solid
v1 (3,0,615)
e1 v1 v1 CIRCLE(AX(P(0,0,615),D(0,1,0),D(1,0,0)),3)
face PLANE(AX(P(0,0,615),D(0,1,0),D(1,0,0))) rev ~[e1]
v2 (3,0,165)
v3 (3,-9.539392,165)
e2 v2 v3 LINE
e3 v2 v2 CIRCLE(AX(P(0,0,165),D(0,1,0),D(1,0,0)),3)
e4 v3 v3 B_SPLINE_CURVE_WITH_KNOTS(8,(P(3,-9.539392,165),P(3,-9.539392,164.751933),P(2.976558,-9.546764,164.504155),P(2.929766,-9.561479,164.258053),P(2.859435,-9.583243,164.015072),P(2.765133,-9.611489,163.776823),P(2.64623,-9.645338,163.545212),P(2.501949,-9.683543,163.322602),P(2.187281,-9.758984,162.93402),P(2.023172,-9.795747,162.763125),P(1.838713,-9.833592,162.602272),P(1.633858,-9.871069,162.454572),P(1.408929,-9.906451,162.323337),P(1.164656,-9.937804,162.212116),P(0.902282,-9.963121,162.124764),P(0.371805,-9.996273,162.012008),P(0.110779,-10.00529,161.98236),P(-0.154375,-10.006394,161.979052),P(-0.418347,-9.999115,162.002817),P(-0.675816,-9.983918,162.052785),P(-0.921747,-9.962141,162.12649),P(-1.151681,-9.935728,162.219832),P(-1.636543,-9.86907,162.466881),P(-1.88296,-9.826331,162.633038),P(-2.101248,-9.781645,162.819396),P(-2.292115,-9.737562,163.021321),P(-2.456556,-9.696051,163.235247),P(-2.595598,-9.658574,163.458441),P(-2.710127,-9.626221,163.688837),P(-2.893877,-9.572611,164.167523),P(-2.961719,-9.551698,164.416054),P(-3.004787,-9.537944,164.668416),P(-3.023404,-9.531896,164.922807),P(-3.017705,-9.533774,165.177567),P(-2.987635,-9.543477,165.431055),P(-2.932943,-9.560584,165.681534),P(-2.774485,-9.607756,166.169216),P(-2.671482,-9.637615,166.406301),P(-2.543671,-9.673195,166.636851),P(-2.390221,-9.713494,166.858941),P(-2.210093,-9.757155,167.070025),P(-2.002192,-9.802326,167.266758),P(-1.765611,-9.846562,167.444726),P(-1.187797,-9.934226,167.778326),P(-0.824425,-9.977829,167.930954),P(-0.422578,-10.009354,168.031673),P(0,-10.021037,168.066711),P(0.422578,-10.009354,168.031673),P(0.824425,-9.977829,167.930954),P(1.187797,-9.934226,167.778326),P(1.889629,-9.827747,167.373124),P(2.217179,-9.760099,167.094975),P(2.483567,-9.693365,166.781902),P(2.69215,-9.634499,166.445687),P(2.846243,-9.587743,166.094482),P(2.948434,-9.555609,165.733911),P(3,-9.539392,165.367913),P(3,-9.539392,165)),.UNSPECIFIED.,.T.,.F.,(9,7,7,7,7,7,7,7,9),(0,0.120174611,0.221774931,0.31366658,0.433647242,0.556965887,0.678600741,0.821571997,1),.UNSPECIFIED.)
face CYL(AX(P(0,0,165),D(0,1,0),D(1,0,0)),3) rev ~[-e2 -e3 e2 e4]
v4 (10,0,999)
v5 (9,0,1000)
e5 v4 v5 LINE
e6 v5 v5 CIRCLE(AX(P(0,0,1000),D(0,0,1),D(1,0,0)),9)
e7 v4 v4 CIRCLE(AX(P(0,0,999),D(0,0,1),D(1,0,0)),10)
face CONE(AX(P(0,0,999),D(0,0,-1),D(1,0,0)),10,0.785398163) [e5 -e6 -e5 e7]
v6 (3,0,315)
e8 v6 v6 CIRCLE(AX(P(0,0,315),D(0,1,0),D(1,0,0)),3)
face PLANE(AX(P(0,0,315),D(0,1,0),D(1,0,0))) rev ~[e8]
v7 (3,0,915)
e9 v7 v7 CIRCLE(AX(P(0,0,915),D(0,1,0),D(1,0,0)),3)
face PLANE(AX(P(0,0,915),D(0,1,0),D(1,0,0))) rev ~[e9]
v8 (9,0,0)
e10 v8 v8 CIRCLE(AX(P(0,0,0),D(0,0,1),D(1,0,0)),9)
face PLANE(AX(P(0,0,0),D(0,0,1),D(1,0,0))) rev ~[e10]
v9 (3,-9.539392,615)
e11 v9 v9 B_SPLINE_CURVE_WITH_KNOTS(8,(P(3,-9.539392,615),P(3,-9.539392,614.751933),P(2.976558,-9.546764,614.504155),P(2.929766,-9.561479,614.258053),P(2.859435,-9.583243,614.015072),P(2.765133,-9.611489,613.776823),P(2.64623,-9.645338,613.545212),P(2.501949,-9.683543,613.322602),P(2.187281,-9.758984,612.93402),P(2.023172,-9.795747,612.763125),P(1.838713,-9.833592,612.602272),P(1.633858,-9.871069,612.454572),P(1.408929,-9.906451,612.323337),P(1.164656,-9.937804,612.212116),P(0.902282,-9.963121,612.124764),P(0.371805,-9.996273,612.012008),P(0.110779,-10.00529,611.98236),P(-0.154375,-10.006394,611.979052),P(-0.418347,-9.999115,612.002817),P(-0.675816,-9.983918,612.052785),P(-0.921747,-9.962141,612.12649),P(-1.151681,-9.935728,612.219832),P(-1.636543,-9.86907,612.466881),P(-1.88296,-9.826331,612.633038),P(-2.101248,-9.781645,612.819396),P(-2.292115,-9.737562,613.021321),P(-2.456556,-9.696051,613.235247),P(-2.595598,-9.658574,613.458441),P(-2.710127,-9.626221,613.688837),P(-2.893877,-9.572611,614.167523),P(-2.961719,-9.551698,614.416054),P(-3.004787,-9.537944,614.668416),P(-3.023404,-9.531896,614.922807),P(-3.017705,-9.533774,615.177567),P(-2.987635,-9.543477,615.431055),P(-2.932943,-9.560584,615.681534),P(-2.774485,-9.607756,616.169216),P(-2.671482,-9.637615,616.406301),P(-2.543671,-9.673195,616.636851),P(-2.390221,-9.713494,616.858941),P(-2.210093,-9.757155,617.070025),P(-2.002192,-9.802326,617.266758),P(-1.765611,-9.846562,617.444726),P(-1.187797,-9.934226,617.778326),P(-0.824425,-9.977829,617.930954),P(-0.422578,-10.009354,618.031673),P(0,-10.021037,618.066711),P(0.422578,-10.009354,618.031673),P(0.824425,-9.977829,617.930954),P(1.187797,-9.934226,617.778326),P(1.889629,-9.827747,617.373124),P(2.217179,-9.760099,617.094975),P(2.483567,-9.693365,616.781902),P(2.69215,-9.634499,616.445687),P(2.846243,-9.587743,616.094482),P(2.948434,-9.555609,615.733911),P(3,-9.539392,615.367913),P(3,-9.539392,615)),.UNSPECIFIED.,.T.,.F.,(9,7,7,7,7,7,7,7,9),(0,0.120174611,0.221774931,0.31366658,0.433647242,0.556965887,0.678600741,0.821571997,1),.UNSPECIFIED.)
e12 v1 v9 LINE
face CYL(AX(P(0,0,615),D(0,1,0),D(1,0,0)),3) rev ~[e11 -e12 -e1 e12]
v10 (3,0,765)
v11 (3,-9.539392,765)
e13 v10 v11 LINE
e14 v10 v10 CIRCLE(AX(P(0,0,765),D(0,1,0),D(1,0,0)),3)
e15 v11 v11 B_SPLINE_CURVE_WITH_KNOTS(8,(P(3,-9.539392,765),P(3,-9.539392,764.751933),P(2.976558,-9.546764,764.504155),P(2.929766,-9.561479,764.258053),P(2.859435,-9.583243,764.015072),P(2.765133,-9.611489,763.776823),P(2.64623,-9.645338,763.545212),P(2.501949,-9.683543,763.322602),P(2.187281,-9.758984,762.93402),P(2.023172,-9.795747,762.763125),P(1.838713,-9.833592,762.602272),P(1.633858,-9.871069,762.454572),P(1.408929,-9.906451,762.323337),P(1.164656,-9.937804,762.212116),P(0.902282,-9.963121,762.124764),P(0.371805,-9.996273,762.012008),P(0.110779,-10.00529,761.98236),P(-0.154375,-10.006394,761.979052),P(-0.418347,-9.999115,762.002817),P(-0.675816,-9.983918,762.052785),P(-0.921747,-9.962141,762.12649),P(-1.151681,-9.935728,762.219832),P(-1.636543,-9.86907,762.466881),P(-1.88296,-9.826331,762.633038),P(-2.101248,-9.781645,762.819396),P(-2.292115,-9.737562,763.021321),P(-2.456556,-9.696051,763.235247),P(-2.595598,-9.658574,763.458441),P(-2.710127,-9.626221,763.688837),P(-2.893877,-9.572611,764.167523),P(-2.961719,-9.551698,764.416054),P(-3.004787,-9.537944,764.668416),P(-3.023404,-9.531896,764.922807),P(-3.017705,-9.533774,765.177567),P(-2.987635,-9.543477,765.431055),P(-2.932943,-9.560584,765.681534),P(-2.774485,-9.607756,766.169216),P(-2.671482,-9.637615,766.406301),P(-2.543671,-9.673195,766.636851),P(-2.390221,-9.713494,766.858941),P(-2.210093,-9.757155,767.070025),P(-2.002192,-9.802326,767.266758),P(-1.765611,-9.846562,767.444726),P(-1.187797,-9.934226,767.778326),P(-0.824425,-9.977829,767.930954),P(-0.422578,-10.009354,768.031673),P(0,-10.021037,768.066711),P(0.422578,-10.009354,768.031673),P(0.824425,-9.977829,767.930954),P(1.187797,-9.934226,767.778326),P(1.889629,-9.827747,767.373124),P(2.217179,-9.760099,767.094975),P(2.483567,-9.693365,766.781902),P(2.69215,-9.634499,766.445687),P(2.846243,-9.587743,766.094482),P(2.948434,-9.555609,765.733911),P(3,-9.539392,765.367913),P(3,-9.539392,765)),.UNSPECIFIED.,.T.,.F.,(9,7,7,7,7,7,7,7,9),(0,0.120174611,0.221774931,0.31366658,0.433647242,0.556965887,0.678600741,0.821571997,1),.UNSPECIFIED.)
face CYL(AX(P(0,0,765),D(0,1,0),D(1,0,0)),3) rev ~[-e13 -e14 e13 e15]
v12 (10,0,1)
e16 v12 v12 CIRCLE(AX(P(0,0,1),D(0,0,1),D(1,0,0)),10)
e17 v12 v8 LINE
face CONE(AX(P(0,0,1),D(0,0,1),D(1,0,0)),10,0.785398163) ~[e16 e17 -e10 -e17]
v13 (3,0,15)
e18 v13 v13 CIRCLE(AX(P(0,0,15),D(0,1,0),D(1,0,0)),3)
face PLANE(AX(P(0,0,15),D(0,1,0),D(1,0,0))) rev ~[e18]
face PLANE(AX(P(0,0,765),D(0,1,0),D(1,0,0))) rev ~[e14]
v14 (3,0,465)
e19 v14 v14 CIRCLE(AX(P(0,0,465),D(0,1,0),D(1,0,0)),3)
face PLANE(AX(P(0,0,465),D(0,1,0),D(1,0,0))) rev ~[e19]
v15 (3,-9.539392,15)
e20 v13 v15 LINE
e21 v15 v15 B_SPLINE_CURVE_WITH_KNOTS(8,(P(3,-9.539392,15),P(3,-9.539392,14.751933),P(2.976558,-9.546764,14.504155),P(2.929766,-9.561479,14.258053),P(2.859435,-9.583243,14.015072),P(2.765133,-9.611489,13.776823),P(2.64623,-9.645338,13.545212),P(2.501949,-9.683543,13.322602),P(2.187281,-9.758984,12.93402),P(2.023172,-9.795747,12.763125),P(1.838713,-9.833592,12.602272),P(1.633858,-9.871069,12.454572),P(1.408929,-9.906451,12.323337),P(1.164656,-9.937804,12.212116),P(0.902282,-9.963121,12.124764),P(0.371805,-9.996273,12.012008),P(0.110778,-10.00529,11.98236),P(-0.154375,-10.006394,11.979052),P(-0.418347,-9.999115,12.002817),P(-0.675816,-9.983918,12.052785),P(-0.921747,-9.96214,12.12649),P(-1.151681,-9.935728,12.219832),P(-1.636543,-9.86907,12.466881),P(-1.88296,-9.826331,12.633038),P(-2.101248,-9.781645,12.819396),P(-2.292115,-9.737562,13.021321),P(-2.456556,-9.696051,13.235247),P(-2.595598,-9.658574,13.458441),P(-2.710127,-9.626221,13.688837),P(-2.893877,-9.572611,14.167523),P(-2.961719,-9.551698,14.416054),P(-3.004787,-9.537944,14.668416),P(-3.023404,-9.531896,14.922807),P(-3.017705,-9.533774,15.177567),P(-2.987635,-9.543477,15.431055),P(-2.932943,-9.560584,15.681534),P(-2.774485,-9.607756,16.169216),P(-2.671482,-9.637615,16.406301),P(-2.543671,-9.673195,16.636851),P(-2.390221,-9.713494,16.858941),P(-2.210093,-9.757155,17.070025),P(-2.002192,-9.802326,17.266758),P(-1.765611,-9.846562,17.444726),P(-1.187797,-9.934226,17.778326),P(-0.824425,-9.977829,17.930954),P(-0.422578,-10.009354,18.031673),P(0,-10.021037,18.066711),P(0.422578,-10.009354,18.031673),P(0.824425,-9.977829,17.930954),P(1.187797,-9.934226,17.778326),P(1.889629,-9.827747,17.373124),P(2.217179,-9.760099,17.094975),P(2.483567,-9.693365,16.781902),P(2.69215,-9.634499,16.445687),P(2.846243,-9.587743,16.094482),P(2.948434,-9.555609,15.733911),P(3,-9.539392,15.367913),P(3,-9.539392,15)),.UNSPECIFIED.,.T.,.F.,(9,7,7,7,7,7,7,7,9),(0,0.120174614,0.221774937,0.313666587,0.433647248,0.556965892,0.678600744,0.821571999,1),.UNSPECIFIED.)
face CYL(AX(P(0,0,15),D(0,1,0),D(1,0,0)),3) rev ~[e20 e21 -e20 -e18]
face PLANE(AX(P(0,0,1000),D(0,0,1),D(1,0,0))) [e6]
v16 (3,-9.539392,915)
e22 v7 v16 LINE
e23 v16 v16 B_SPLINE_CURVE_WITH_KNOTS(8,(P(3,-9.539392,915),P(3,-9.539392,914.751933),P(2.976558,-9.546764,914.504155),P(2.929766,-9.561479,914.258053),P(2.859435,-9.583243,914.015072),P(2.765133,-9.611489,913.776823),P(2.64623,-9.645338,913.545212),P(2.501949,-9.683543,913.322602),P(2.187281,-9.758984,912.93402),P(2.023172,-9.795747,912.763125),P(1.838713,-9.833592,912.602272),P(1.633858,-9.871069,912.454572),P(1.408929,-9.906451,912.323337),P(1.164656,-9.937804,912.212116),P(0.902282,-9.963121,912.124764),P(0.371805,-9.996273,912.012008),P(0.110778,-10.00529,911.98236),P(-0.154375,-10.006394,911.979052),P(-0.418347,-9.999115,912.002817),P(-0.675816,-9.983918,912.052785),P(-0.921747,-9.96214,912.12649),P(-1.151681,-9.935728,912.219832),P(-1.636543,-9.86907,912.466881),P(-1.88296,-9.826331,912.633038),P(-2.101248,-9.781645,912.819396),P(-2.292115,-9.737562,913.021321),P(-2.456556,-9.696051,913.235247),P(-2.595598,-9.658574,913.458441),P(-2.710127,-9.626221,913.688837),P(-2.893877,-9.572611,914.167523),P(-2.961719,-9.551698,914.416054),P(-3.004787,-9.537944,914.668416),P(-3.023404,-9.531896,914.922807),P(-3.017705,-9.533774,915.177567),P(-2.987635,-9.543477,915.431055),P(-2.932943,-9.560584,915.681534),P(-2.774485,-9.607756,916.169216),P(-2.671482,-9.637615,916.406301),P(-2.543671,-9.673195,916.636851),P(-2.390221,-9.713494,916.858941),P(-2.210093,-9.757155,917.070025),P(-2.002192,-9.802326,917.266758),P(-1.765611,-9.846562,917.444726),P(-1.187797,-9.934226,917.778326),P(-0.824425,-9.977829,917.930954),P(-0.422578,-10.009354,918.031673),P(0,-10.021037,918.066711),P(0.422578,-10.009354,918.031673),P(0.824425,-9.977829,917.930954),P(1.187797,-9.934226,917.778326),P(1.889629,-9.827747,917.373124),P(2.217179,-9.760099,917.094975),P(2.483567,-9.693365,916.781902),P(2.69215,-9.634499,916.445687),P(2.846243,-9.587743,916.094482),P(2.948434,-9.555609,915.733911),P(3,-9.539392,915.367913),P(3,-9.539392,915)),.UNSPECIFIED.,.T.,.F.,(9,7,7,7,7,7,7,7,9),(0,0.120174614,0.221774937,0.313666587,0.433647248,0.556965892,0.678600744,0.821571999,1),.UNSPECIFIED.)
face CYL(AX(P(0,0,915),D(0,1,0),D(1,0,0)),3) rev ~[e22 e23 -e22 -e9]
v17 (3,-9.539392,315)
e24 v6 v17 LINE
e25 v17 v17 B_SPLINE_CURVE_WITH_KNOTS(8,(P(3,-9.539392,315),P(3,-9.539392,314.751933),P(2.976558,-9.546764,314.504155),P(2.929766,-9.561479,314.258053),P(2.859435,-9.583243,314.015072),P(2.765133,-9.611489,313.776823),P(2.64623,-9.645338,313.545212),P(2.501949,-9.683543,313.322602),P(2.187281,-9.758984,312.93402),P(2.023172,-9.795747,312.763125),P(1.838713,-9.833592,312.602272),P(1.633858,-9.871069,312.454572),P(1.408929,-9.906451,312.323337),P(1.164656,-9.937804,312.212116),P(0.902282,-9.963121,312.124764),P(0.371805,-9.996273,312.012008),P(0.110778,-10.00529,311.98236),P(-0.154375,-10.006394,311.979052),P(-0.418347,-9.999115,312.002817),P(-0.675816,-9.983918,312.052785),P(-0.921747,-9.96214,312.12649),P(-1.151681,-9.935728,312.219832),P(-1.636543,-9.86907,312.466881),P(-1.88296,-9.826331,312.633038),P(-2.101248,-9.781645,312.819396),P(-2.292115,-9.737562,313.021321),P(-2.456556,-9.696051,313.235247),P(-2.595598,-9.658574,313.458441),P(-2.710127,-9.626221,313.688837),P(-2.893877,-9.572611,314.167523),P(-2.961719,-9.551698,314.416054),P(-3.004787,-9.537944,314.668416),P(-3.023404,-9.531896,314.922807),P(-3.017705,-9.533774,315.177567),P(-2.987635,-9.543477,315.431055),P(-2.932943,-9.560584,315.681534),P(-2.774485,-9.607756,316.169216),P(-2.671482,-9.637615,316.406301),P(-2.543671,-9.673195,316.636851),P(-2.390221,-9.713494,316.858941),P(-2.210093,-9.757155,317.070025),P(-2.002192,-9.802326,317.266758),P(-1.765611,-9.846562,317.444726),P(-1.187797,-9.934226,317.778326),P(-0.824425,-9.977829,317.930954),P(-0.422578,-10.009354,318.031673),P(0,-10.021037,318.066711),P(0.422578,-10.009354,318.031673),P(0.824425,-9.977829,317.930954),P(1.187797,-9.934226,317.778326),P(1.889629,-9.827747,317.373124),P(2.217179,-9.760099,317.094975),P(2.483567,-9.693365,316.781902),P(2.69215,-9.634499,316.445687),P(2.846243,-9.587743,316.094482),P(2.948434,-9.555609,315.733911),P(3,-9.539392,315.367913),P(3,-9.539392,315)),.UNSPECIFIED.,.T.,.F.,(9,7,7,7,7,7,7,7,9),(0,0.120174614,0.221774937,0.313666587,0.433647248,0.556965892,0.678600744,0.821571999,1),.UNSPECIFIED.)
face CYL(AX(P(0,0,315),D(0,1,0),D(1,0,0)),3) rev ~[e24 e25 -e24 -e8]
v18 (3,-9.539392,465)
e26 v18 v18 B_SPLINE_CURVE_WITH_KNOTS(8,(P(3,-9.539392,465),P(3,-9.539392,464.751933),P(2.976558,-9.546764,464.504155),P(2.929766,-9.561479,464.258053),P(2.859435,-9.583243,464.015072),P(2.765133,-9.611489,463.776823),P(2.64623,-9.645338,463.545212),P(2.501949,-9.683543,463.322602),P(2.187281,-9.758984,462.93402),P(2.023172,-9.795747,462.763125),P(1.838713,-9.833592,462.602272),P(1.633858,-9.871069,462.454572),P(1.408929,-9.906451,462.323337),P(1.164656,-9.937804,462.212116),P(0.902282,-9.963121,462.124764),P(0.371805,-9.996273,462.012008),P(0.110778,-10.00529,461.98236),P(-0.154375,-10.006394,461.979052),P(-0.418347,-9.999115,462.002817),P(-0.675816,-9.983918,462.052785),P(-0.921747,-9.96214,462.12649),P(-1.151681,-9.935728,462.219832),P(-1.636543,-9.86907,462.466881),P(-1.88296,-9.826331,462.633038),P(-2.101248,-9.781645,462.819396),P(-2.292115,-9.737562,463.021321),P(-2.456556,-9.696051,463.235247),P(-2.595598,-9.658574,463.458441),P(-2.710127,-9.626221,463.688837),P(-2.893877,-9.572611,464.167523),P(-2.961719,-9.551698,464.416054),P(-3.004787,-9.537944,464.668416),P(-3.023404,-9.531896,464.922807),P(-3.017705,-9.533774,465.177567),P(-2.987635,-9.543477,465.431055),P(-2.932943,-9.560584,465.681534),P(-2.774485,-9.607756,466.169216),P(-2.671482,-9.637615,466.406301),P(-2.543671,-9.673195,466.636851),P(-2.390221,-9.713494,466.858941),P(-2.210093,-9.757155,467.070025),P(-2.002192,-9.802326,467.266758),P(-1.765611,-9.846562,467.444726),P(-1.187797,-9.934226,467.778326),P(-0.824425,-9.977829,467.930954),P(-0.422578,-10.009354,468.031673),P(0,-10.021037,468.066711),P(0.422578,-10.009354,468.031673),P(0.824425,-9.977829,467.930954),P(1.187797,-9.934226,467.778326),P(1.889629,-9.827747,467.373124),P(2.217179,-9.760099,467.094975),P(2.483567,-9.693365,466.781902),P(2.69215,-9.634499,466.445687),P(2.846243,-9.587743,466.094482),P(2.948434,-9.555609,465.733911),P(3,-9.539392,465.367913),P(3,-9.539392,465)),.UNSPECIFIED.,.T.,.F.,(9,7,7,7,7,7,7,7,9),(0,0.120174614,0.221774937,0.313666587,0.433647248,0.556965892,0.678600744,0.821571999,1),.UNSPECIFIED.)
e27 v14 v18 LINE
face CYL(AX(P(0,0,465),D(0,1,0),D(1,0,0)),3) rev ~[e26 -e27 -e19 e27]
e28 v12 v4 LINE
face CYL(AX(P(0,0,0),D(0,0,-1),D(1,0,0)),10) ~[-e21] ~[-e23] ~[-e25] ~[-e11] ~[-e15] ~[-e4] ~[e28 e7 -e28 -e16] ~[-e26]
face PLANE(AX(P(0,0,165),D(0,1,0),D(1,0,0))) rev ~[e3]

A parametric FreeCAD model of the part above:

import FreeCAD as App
import Part
import Sketcher
Q = App.Units.Quantity


def edges_at(feature, points):
    """Names of the edges that pass closest to the given points."""
    edges = feature.Shape.Edges
    near = lambda p: min(range(len(edges)), key=lambda i: edges[i].distToShape(Part.Vertex(*p))[0])
    return sorted({f"Edge{near(p) + 1}" for p in points})

doc = App.newDocument("Part")
body = doc.addObject("PartDesign::Body", "Body")

# Sketch on XY plane
sketch1 = doc.addObject("Sketcher::SketchObject", "Sketch")
body.addObject(sketch1)
sketch1.AttachmentSupport = (doc.XY_Plane, [""])
sketch1.MapMode = "FlatFace"
sketch1.addGeometry(Part.Circle(App.Vector(0, 0, 0), App.Vector(0, 0, 1), 10), False)
sketch1.addConstraint(Sketcher.Constraint("Coincident", 0, 3, -1, 1))
sketch1.addConstraint(Sketcher.Constraint("Diameter", 0, Q("20 mm")))
pad1 = doc.addObject("PartDesign::Pad", "Pad")
body.addObject(pad1)
pad1.Profile = sketch1
pad1.Length = 1000
doc.recompute()

chamfer = doc.addObject("PartDesign::Chamfer", "Chamfer")
body.addObject(chamfer)
chamfer.Base = (pad1, edges_at(pad1, [(-10, 0, 0), (-10, 0, 1000)]))
chamfer.Size = 1

# Sketch on XZ plane
sketch2 = doc.addObject("Sketcher::SketchObject", "Sketch001")
body.addObject(sketch2)
sketch2.AttachmentSupport = (doc.XZ_Plane, [""])
sketch2.MapMode = "FlatFace"
sketch2.addGeometry(Part.Circle(App.Vector(0, 15, 0), App.Vector(0, 0, 1), 3), False)
sketch2.addConstraint(Sketcher.Constraint("PointOnObject", 0, 3, -2))
sketch2.addConstraint(Sketcher.Constraint("Diameter", 0, Q("6 mm")))
sketch2.addConstraint(Sketcher.Constraint("DistanceY", -1, 1, 0, 3, Q("15 mm")))
pocket1 = doc.addObject("PartDesign::Pocket", "Pocket")
body.addObject(pocket1)
pocket1.Profile = sketch2
pocket1.Length = 10
pocket1.Reversed = True
doc.recompute()

linearpattern = doc.addObject("PartDesign::LinearPattern", "LinearPattern")
body.addObject(linearpattern)
linearpattern.Originals = [pocket1]
linearpattern.Direction = (doc.Z_Axis, [""])
linearpattern.Mode = "offset"
linearpattern.Offset = 150
linearpattern.Occurrences = 7
body.Tip = linearpattern

doc.recompute()
